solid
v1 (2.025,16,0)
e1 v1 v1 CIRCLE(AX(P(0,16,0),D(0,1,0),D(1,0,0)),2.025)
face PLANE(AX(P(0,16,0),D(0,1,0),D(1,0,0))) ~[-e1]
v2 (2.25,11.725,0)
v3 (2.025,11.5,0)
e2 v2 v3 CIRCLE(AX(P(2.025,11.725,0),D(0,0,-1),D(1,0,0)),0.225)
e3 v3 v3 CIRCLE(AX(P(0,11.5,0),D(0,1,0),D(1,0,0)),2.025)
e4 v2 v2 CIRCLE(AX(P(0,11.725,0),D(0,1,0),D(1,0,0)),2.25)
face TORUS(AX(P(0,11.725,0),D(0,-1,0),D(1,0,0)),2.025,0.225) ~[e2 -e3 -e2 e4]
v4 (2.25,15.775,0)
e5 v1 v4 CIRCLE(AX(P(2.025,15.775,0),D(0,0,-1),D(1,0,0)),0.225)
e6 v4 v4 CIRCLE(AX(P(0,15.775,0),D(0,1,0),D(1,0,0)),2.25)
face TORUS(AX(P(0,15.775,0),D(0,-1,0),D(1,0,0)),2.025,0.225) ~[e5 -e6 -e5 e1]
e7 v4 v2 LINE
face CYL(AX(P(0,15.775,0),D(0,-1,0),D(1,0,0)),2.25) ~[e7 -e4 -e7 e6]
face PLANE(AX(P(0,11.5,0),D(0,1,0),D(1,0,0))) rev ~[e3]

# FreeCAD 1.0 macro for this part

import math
import FreeCAD as App
import Part
import Sketcher
from FreeCAD import Vector
Q = App.Units.Quantity

doc = App.newDocument("Part")
body = doc.addObject("PartDesign::Body", "Body")

sketch1 = doc.addObject("Sketcher::SketchObject", "Sketch")
body.addObject(sketch1)
sketch1.AttachmentSupport = (doc.XY_Plane, [""])
sketch1.MapMode = "FlatFace"
sketch1.addGeometry([
    Part.LineSegment(Vector(2.02, 16, 0), Vector(0, 16, 0)),
    Part.LineSegment(Vector(0, 16, 0), Vector(0, 11.5, 0)),
    Part.LineSegment(Vector(0, 11.5, 0), Vector(2.02, 11.5, 0)),
    Part.ArcOfCircle(Part.Circle(Vector(2.02, 11.72, 0), Vector(0, 0, 1), 0.23), math.radians(-90), math.radians(0)),
    Part.LineSegment(Vector(2.25, 11.72, 0), Vector(2.25, 15.78, 0)),
    Part.ArcOfCircle(Part.Circle(Vector(2.02, 15.78, 0), Vector(0, 0, 1), 0.22), math.radians(0), math.radians(90)),
], False)
sketch1.addConstraint([
    Sketcher.Constraint("Coincident", 0, 2, 1, 1),
    Sketcher.Constraint("Coincident", 1, 2, 2, 1),
    Sketcher.Constraint("Tangent", 2, 2, 3, 1),
    Sketcher.Constraint("Tangent", 3, 2, 4, 1),
    Sketcher.Constraint("Tangent", 4, 2, 5, 1),
    Sketcher.Constraint("Tangent", 5, 2, 0, 1),
    Sketcher.Constraint("Horizontal", 0),
    Sketcher.Constraint("Vertical", 1),
    Sketcher.Constraint("Horizontal", 2),
    Sketcher.Constraint("Vertical", 4),
    Sketcher.Constraint("Equal", 3, 5),
    Sketcher.Constraint("PointOnObject", 0, 2, -2),
    Sketcher.Constraint("DistanceY", 1, 2, 1, 1, Q("4.5 mm")),
    Sketcher.Constraint("DistanceY", -1, 1, 0, 2, Q("16 mm")),
    Sketcher.Constraint("Radius", 3, Q("0.225 mm")),
    Sketcher.Constraint("DistanceX", 0, 2, 0, 1, Q("2.025 mm")),
])
revolution = doc.addObject("PartDesign::Revolution", "Revolution")
body.addObject(revolution)
revolution.Profile = sketch1
revolution.ReferenceAxis = (sketch1, ["V_Axis"])
revolution.Angle = 360

doc.recompute()
